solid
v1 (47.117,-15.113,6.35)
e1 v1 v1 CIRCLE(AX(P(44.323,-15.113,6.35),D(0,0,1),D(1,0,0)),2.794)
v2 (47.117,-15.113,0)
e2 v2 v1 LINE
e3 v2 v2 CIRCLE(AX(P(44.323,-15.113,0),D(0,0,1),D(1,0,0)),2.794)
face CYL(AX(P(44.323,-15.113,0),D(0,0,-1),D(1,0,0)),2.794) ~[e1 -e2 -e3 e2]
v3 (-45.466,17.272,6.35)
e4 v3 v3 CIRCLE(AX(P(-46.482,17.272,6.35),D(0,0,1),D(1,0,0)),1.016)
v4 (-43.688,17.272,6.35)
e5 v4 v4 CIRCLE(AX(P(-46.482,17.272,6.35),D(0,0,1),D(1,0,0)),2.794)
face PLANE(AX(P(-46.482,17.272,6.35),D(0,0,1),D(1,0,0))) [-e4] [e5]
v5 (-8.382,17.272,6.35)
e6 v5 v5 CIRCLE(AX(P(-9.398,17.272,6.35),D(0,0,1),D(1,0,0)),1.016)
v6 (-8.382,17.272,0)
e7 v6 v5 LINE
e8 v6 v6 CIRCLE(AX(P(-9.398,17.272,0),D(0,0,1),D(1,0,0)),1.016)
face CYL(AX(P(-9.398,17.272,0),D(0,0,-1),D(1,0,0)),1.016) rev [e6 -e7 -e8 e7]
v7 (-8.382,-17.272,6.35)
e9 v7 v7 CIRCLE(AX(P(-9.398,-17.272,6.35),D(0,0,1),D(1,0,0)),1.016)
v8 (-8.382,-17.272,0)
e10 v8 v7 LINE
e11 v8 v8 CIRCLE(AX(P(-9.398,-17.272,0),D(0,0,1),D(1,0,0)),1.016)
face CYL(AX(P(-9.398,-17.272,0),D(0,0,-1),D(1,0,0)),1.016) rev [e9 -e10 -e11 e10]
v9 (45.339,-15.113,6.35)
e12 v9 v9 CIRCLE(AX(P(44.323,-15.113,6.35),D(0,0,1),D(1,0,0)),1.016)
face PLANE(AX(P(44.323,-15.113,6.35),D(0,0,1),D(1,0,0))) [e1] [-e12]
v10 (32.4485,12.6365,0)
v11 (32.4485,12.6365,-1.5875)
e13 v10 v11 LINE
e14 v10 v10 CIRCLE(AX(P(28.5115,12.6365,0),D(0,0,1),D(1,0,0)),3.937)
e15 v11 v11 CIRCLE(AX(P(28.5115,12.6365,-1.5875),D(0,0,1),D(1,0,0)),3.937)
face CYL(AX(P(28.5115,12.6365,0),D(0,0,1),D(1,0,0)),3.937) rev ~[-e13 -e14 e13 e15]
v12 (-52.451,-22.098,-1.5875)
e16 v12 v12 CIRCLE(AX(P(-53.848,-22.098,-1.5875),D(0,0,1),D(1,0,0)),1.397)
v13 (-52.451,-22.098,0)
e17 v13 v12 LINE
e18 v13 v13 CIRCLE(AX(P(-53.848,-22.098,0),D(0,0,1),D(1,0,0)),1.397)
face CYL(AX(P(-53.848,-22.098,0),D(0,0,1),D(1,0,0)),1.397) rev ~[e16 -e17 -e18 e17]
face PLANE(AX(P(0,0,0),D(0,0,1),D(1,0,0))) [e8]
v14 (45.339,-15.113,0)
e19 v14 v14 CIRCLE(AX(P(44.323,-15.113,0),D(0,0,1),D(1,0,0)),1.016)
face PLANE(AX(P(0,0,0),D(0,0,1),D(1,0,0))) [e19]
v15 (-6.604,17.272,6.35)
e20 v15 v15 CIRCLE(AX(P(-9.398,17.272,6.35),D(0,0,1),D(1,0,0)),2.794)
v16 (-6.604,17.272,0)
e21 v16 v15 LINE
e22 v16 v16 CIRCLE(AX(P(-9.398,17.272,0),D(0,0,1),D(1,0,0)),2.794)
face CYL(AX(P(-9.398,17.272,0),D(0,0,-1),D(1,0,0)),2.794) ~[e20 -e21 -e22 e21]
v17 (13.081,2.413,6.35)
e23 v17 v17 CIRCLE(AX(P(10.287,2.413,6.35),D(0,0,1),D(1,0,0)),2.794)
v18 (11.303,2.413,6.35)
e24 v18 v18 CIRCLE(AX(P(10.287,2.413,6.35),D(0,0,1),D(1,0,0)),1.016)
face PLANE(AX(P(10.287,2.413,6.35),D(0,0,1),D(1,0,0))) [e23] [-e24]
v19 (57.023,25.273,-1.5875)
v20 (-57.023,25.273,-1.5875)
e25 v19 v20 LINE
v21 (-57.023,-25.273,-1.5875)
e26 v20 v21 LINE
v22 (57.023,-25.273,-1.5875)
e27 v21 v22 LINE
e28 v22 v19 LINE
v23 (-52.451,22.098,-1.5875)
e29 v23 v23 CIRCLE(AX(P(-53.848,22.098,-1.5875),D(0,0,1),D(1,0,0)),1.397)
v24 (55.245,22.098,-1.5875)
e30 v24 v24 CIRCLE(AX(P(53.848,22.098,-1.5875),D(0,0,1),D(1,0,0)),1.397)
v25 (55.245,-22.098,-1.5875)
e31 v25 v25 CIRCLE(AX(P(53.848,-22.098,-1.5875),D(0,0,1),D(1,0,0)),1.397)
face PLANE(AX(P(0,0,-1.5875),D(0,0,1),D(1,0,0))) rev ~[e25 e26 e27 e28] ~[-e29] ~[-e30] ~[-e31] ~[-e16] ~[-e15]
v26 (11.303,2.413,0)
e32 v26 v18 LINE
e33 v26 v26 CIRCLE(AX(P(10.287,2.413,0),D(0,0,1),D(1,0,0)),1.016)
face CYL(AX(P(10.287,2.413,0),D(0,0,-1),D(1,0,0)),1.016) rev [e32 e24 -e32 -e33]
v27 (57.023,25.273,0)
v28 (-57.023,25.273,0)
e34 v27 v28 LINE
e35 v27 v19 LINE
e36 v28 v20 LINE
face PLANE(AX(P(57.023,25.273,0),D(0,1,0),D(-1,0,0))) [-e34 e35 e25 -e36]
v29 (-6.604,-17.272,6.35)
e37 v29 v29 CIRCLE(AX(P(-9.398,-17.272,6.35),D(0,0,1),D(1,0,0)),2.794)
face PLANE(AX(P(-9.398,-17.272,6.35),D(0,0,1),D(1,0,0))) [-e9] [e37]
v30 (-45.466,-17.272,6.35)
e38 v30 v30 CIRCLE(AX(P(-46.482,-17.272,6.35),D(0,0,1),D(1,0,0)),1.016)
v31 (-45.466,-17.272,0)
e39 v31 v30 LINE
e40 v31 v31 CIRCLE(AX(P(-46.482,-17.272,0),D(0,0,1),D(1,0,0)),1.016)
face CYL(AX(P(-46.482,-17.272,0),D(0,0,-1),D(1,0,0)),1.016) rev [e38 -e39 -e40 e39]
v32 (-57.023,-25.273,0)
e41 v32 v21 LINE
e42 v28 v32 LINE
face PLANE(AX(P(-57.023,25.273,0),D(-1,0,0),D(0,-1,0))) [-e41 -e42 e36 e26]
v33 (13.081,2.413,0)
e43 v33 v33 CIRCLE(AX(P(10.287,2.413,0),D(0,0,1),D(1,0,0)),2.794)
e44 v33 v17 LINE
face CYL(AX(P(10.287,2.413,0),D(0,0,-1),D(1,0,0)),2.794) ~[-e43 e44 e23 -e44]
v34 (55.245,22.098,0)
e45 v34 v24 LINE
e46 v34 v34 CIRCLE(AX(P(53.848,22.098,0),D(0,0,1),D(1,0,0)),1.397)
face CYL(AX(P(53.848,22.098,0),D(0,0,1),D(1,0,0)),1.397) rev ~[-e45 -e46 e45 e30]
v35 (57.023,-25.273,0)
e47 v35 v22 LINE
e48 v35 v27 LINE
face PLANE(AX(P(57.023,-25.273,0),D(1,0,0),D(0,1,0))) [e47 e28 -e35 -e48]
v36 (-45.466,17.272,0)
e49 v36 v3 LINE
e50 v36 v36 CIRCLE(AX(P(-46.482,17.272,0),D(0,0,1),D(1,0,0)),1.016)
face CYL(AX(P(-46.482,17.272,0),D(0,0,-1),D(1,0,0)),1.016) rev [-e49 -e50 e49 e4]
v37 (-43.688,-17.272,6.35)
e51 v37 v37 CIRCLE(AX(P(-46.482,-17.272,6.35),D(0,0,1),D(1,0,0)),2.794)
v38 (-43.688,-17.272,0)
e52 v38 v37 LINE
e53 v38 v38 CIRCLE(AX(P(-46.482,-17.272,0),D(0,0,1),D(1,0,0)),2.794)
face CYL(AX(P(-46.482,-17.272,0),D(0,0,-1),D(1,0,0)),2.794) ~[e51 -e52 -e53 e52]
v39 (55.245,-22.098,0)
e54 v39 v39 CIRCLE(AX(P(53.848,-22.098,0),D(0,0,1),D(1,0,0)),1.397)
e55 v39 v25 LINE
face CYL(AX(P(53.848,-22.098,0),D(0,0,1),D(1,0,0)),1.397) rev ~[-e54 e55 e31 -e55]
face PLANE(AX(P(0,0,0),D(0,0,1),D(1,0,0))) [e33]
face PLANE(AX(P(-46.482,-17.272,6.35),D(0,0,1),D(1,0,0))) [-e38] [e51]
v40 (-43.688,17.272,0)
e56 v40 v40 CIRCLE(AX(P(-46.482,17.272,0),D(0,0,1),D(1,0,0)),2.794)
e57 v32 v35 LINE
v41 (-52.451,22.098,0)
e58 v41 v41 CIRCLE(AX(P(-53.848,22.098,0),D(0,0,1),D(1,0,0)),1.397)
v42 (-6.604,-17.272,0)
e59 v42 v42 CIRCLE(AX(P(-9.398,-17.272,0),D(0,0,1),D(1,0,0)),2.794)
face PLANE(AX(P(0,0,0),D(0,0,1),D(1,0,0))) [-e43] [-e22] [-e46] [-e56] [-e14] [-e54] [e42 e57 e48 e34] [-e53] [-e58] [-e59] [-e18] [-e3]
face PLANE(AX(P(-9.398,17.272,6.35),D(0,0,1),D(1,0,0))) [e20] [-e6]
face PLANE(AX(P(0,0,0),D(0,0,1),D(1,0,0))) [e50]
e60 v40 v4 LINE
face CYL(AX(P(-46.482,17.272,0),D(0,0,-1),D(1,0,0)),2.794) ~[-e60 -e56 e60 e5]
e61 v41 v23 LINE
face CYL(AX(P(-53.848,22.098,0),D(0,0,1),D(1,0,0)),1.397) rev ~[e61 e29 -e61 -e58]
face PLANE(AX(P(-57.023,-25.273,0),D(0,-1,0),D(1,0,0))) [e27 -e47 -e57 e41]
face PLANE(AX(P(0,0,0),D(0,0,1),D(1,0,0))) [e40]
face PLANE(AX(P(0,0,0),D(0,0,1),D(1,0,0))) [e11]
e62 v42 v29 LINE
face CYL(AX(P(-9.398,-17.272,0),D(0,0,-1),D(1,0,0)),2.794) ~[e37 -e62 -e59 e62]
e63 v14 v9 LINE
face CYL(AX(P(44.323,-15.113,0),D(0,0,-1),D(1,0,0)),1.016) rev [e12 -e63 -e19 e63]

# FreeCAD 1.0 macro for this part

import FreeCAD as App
import Part
import Sketcher
from FreeCAD import Vector
Q = App.Units.Quantity


def add_polygon(sketch, points):
    """Adds a closed chain of lines whose ends are joined by coincident constraints."""
    first, n = sketch.GeometryCount, len(points)
    for a, b in zip(points, points[1:] + points[:1]):
        sketch.addGeometry(Part.LineSegment(App.Vector(*a, 0), App.Vector(*b, 0)), False)
    for i in range(n):
        sketch.addConstraint(Sketcher.Constraint("Coincident", first + i, 2, first + (i + 1) % n, 1))

doc = App.newDocument("Part")
body = doc.addObject("PartDesign::Body", "Body")

# Sketch on XY plane
sketch1 = body.newObject("Sketcher::SketchObject", "Sketch")
sketch1.AttachmentSupport = (doc.getObject("XY_Plane"), [""])
sketch1.MapMode = "FlatFace"
add_polygon(sketch1, [(57, -25.3), (57, 25.3), (-57, 25.3), (-57, -25.3)])  # lines 0-3
sketch1.addGeometry(Part.Circle(Vector(-53.8, -22.1, 0), Vector(0, 0, 1), 1.4), False)  # 4
sketch1.addGeometry(Part.Circle(Vector(53.8, -22.1, 0), Vector(0, 0, 1), 1.4), False)  # 5
sketch1.addGeometry(Part.Circle(Vector(-53.8, 22.1, 0), Vector(0, 0, 1), 1.4), False)  # 6
sketch1.addGeometry(Part.Circle(Vector(28.5, 12.6, 0), Vector(0, 0, 1), 3.9), False)  # 7
sketch1.addGeometry(Part.Circle(Vector(53.8, 22.1, 0), Vector(0, 0, 1), 1.4), False)  # 8
sketch1.addConstraint([
    Sketcher.Constraint("Vertical", 0),
    Sketcher.Constraint("Horizontal", 1),
    Sketcher.Constraint("Vertical", 2),
    Sketcher.Constraint("Horizontal", 3),
    Sketcher.Constraint("Equal", 4, 5),
    Sketcher.Constraint("Equal", 5, 6),
    Sketcher.Constraint("Equal", 6, 8),
    Sketcher.Constraint("Symmetric", 5, 3, 6, 3, -1, 1),
    Sketcher.Constraint("Symmetric", 4, 3, 8, 3, -1, 1),
    Sketcher.Constraint("Symmetric", 0, 2, 2, 2, -1, 1),
    Sketcher.Constraint("Symmetric", 4, 3, 5, 3, -2),
    Sketcher.Constraint("Diameter", 4, Q("0.11 in")),
    Sketcher.Constraint("Diameter", 7, Q("0.31 in")),
    Sketcher.Constraint("DistanceX", 1, 2, 1, 1, Q("4.49 in")),
    Sketcher.Constraint("DistanceY", 0, 1, 0, 2, Q("1.99 in")),
    Sketcher.Constraint("DistanceX", 4, 3, -1, 1, Q("2.12 in")),
    Sketcher.Constraint("DistanceY", 4, 3, -1, 1, Q("0.87 in")),
    Sketcher.Constraint("DistanceX", -1, 1, 7, 3, Q("1.1225 in")),
    Sketcher.Constraint("DistanceY", -1, 1, 7, 3, Q("0.4975 in")),
])
pad1 = body.newObject("PartDesign::Pad", "Pad")
pad1.Profile = sketch1
pad1.Length = Q("0.0625 in")
pad1.Reversed = True

# Sketch on XY plane
sketch2 = body.newObject("Sketcher::SketchObject", "Sketch001")
sketch2.AttachmentSupport = (doc.getObject("XY_Plane"), [""])
sketch2.MapMode = "FlatFace"
sketch2.addGeometry([
    Part.Circle(Vector(10.3, 2.4, 0), Vector(0, 0, 1), 2.8),  # 0
    Part.Circle(Vector(10.3, 2.4, 0), Vector(0, 0, 1), 1),  # 1
    Part.Circle(Vector(44.3, -15.1, 0), Vector(0, 0, 1), 2.8),  # 2
    Part.Circle(Vector(44.3, -15.1, 0), Vector(0, 0, 1), 1),  # 3
    Part.Circle(Vector(-9.4, -17.3, 0), Vector(0, 0, 1), 2.8),  # 4
    Part.Circle(Vector(-9.4, -17.3, 0), Vector(0, 0, 1), 1),  # 5
    Part.Circle(Vector(-9.4, 17.3, 0), Vector(0, 0, 1), 2.8),  # 6
    Part.Circle(Vector(-9.4, 17.3, 0), Vector(0, 0, 1), 1),  # 7
    Part.Circle(Vector(-46.5, 17.3, 0), Vector(0, 0, 1), 2.8),  # 8
    Part.Circle(Vector(-46.5, 17.3, 0), Vector(0, 0, 1), 1),  # 9
    Part.Circle(Vector(-46.5, -17.3, 0), Vector(0, 0, 1), 2.8),  # 10
    Part.Circle(Vector(-46.5, -17.3, 0), Vector(0, 0, 1), 1),  # 11
], False)
sketch2.addConstraint([
    Sketcher.Constraint("Coincident", 1, 3, 0, 3),
    Sketcher.Constraint("Coincident", 3, 3, 2, 3),
    Sketcher.Constraint("Coincident", 5, 3, 4, 3),
    Sketcher.Constraint("Coincident", 7, 3, 6, 3),
    Sketcher.Constraint("Coincident", 9, 3, 8, 3),
    Sketcher.Constraint("Coincident", 11, 3, 10, 3),
    Sketcher.Constraint("Equal", 0, 2),
    Sketcher.Constraint("Equal", 1, 3),
    Sketcher.Constraint("Equal", 2, 4),
    Sketcher.Constraint("Equal", 3, 5),
    Sketcher.Constraint("Equal", 4, 6),
    Sketcher.Constraint("Equal", 5, 7),
    Sketcher.Constraint("Equal", 6, 8),
    Sketcher.Constraint("Equal", 7, 9),
    Sketcher.Constraint("Equal", 8, 10),
    Sketcher.Constraint("Equal", 9, 11),
    Sketcher.Constraint("Symmetric", 4, 3, 6, 3, -1),
    Sketcher.Constraint("Symmetric", 8, 3, 10, 3, -1),
    Sketcher.Constraint("Horizontal", 7, 3, 8, 3),
    Sketcher.Constraint("Diameter", 0, Q("0.22 in")),
    Sketcher.Constraint("Diameter", 1, Q("0.08 in")),
    Sketcher.Constraint("DistanceX", 4, 3, -1, 1, Q("0.37 in")),
    Sketcher.Constraint("DistanceY", 4, 3, -1, 1, Q("0.68 in")),
    Sketcher.Constraint("DistanceX", 8, 3, -1, 1, Q("1.83 in")),
    Sketcher.Constraint("DistanceX", 0, 3, 2, 3, Q("1.34 in")),
    Sketcher.Constraint("DistanceY", 2, 3, 0, 3, Q("0.69 in")),
    Sketcher.Constraint("DistanceX", -1, 1, 0, 3, Q("0.405 in")),
    Sketcher.Constraint("DistanceY", -1, 1, 0, 3, Q("0.095 in")),
])
pad2 = body.newObject("PartDesign::Pad", "Pad001")
pad2.Profile = sketch2
pad2.Length = Q("0.25 in")

doc.recompute()
